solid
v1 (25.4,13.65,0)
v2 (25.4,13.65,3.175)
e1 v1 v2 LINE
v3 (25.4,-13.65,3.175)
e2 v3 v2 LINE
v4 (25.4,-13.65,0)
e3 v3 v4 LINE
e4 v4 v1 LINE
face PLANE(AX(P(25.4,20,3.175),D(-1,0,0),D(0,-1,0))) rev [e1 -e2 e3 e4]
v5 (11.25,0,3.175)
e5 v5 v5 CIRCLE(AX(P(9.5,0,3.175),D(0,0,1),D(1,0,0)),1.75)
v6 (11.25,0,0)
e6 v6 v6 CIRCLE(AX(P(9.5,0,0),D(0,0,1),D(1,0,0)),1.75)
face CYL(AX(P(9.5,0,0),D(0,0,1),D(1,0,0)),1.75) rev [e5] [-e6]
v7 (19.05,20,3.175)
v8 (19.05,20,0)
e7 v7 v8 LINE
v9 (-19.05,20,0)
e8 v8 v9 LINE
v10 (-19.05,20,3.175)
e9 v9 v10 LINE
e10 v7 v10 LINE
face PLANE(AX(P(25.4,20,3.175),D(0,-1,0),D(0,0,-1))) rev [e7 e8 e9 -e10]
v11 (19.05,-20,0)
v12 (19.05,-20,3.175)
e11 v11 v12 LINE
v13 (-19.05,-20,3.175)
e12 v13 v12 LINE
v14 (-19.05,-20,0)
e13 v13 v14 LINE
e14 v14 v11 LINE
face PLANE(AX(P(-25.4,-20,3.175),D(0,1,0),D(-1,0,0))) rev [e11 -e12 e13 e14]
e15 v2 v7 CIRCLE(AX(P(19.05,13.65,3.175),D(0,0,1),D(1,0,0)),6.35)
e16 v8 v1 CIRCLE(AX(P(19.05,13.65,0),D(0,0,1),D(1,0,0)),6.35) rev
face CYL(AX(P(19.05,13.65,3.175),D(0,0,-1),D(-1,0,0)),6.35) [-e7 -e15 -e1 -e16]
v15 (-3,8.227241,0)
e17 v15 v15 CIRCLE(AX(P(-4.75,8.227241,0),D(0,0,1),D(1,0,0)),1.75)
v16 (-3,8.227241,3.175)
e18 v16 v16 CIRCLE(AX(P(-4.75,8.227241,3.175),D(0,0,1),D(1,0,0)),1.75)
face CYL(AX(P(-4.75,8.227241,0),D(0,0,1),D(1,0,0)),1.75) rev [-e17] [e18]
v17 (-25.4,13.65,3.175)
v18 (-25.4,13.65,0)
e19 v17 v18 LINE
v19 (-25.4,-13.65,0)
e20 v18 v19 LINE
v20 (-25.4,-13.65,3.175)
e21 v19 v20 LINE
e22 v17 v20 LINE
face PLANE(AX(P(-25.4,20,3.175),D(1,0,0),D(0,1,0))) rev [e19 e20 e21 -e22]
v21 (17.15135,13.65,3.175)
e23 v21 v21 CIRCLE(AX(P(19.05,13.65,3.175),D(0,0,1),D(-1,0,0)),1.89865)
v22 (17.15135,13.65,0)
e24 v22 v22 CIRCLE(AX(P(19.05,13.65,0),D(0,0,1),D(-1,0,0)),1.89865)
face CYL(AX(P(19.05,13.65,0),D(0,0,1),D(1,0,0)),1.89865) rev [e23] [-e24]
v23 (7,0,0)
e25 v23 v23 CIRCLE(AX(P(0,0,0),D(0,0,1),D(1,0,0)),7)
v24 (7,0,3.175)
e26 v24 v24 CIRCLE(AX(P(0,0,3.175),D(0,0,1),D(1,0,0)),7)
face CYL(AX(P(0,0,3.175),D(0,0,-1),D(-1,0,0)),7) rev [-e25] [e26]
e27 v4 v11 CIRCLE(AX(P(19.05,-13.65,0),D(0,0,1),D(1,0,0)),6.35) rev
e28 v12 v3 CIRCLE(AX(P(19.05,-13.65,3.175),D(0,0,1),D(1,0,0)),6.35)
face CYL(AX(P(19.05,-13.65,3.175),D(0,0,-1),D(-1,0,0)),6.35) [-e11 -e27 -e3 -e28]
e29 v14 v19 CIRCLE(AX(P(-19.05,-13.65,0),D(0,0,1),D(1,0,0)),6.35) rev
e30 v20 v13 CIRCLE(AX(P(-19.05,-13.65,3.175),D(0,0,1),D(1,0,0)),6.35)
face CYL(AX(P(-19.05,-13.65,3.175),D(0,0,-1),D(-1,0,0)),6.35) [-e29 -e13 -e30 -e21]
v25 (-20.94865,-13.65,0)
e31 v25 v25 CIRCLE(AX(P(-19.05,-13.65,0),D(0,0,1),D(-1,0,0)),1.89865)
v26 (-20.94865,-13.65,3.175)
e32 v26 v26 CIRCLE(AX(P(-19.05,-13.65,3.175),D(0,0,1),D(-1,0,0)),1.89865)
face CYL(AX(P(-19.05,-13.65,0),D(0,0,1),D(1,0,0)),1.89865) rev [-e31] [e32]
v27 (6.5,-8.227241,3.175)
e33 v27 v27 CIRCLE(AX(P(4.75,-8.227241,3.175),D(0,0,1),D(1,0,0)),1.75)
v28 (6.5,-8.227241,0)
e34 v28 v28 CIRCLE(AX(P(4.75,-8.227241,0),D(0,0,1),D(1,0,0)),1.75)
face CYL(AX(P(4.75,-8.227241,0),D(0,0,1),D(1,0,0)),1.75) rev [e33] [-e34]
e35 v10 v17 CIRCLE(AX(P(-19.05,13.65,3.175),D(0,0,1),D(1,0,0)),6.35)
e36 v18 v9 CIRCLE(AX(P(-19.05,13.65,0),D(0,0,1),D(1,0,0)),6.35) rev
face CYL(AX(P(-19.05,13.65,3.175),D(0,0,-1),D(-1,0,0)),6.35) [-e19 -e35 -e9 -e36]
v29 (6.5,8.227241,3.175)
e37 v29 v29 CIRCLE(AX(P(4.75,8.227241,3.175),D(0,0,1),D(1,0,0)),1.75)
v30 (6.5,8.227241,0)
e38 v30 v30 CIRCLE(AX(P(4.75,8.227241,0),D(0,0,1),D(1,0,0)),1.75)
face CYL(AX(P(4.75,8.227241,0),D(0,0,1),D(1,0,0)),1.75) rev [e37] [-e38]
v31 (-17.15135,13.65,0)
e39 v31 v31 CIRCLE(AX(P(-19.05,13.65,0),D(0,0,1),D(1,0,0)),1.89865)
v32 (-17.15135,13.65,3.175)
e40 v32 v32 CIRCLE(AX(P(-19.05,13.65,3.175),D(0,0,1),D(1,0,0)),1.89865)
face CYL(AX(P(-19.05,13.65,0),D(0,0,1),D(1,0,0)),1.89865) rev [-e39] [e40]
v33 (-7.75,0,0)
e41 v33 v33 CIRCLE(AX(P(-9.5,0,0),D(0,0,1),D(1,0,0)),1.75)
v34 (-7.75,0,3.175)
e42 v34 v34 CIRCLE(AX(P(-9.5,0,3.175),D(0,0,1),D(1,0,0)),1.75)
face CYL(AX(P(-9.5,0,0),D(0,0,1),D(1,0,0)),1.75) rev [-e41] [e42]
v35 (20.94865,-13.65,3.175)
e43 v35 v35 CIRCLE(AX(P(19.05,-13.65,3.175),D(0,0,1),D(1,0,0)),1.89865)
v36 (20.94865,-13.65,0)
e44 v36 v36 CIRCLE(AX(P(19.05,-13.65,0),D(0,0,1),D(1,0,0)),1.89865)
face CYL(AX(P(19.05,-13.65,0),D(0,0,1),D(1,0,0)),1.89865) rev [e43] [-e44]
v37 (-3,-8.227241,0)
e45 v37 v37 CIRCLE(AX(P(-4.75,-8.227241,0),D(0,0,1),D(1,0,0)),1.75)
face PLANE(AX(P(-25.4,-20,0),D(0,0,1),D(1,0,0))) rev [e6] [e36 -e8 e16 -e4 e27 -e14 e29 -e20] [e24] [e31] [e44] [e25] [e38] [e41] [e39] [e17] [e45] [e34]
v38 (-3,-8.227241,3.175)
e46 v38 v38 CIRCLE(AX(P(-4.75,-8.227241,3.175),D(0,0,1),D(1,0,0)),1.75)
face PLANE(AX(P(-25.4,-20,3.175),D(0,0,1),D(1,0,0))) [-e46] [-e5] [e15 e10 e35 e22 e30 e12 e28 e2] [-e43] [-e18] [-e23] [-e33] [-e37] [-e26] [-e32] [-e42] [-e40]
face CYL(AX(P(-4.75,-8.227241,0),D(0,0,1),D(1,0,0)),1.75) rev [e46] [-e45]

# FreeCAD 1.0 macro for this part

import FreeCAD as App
import Part
import Sketcher
from FreeCAD import Vector
Q = App.Units.Quantity


def edges_at(feature, points):
    """Names of the edges that pass closest to the given points."""
    edges = feature.Shape.Edges
    near = lambda p: min(range(len(edges)), key=lambda i: edges[i].distToShape(Part.Vertex(*p))[0])
    return sorted({f"Edge{near(p) + 1}" for p in points})

doc = App.newDocument("Part")
body = doc.addObject("PartDesign::Body", "Body")

# Sketch on XY plane
sketch1 = body.newObject("Sketcher::SketchObject", "Sketch")
sketch1.AttachmentSupport = (doc.getObject("XY_Plane"), [""])
sketch1.MapMode = "FlatFace"
sketch1.addGeometry([
    Part.LineSegment(Vector(-25, 20, 0), Vector(-25, -20, 0)),  # 0
    Part.LineSegment(Vector(-25, -20, 0), Vector(25, -20, 0)),  # 1
    Part.LineSegment(Vector(25, -20, 0), Vector(25, 20, 0)),  # 2
    Part.LineSegment(Vector(25, 20, 0), Vector(-25, 20, 0)),  # 3
    Part.Circle(Vector(0, 0, 0), Vector(0, 0, 1), 7),  # 4
], False)
sketch1.addConstraint([
    Sketcher.Constraint("Coincident", 0, 2, 1, 1),
    Sketcher.Constraint("Coincident", 1, 2, 2, 1),
    Sketcher.Constraint("Coincident", 2, 2, 3, 1),
    Sketcher.Constraint("Coincident", 3, 2, 0, 1),
    Sketcher.Constraint("Vertical", 0),
    Sketcher.Constraint("Horizontal", 1),
    Sketcher.Constraint("Vertical", 2),
    Sketcher.Constraint("Horizontal", 3),
    Sketcher.Constraint("Coincident", 4, 3, -1, 1),
    Sketcher.Constraint("Symmetric", 0, 2, 2, 2, -1, 1),
    Sketcher.Constraint("Diameter", 4, Q("14 mm")),
    Sketcher.Constraint("DistanceY", 0, 2, 0, 1, Q("40 mm")),
    Sketcher.Constraint("DistanceX", 1, 1, 1, 2, Q("50.8 mm")),
])
pad1 = body.newObject("PartDesign::Pad", "Pad")
pad1.Profile = sketch1
pad1.Length = 3.175
doc.recompute()

fillet = body.newObject("PartDesign::Fillet", "Fillet")
fillet.Base = (pad1, edges_at(pad1, [
    (-25.4, 20, 1.587),
    (25.4, 20, 1.587),
    (25.4, -20, 1.587),
    (-25.4, -20, 1.587),
]))
fillet.Radius = 6.35

# Sketch on XY plane
sketch2 = body.newObject("Sketcher::SketchObject", "Sketch001")
sketch2.AttachmentSupport = (doc.getObject("XY_Plane"), [""])
sketch2.MapMode = "FlatFace"
sketch2.AttachmentOffset = App.Placement(Vector(0, 0, 3.175), App.Rotation())
sketch2.addGeometry([
    Part.Circle(Vector(9.5, 0, 0), Vector(0, 0, 1), 1.8),  # 0
    Part.Circle(Vector(4.8, -8.2, 0), Vector(0, 0, 1), 1.8),  # 1
    Part.Circle(Vector(-4.8, -8.2, 0), Vector(0, 0, 1), 1.8),  # 2
    Part.Circle(Vector(-9.5, 0, 0), Vector(0, 0, 1), 1.8),  # 3
    Part.Circle(Vector(-4.8, 8.2, 0), Vector(0, 0, 1), 1.8),  # 4
    Part.Circle(Vector(4.8, 8.2, 0), Vector(0, 0, 1), 1.8),  # 5
], False)
sketch2.addConstraint([
    Sketcher.Constraint("Equal", 0, 1),
    Sketcher.Constraint("Equal", 1, 2),
    Sketcher.Constraint("Equal", 2, 3),
    Sketcher.Constraint("Equal", 3, 4),
    Sketcher.Constraint("Equal", 4, 5),
    Sketcher.Constraint("Symmetric", 0, 3, 3, 3, -1, 1),
    Sketcher.Constraint("Symmetric", 1, 3, 4, 3, -1, 1),
    Sketcher.Constraint("Symmetric", 2, 3, 5, 3, -1, 1),
    Sketcher.Constraint("Symmetric", 1, 3, 2, 3, -2),
    Sketcher.Constraint("PointOnObject", 0, 3, -1),
    Sketcher.Constraint("Diameter", 0, Q("3.5 mm")),
    Sketcher.Constraint("DistanceX", 3, 3, 0, 3, Q("19 mm")),
    Sketcher.Constraint("DistanceX", 2, 3, 1, 3, Q("9.5 mm")),
    Sketcher.Constraint("DistanceY", 1, 3, -1, 1, Q("8.227241 mm")),
])
pocket1 = body.newObject("PartDesign::Pocket", "Pocket")
pocket1.Profile = sketch2
pocket1.Type = "ThroughAll"

# Sketch on XY plane
sketch3 = body.newObject("Sketcher::SketchObject", "Sketch002")
sketch3.AttachmentSupport = (doc.getObject("XY_Plane"), [""])
sketch3.MapMode = "FlatFace"
sketch3.AttachmentOffset = App.Placement(Vector(0, 0, 3.175), App.Rotation())
sketch3.addGeometry([
    Part.Circle(Vector(19.1, -13.7, 0), Vector(0, 0, 1), 1.9),
    Part.Circle(Vector(19.1, 13.7, 0), Vector(0, 0, 1), 1.9),
    Part.Circle(Vector(-19.1, -13.7, 0), Vector(0, 0, 1), 1.9),
    Part.Circle(Vector(-19.1, 13.7, 0), Vector(0, 0, 1), 1.9),
], False)
sketch3.addConstraint([
    Sketcher.Constraint("Equal", 0, 1),
    Sketcher.Constraint("Equal", 1, 2),
    Sketcher.Constraint("Equal", 2, 3),
    Sketcher.Constraint("Symmetric", 1, 3, 2, 3, -1, 1),
    Sketcher.Constraint("Symmetric", 0, 3, 3, 3, -1, 1),
    Sketcher.Constraint("Symmetric", 0, 3, 2, 3, -2),
    Sketcher.Constraint("Diameter", 0, Q("3.7973 mm")),
    Sketcher.Constraint("DistanceY", 0, 3, 1, 3, Q("27.3 mm")),
    Sketcher.Constraint("DistanceX", 2, 3, 0, 3, Q("38.1 mm")),
])
pocket2 = body.newObject("PartDesign::Pocket", "Pocket001")
pocket2.Profile = sketch3
pocket2.Type = "ThroughAll"

doc.recompute()
